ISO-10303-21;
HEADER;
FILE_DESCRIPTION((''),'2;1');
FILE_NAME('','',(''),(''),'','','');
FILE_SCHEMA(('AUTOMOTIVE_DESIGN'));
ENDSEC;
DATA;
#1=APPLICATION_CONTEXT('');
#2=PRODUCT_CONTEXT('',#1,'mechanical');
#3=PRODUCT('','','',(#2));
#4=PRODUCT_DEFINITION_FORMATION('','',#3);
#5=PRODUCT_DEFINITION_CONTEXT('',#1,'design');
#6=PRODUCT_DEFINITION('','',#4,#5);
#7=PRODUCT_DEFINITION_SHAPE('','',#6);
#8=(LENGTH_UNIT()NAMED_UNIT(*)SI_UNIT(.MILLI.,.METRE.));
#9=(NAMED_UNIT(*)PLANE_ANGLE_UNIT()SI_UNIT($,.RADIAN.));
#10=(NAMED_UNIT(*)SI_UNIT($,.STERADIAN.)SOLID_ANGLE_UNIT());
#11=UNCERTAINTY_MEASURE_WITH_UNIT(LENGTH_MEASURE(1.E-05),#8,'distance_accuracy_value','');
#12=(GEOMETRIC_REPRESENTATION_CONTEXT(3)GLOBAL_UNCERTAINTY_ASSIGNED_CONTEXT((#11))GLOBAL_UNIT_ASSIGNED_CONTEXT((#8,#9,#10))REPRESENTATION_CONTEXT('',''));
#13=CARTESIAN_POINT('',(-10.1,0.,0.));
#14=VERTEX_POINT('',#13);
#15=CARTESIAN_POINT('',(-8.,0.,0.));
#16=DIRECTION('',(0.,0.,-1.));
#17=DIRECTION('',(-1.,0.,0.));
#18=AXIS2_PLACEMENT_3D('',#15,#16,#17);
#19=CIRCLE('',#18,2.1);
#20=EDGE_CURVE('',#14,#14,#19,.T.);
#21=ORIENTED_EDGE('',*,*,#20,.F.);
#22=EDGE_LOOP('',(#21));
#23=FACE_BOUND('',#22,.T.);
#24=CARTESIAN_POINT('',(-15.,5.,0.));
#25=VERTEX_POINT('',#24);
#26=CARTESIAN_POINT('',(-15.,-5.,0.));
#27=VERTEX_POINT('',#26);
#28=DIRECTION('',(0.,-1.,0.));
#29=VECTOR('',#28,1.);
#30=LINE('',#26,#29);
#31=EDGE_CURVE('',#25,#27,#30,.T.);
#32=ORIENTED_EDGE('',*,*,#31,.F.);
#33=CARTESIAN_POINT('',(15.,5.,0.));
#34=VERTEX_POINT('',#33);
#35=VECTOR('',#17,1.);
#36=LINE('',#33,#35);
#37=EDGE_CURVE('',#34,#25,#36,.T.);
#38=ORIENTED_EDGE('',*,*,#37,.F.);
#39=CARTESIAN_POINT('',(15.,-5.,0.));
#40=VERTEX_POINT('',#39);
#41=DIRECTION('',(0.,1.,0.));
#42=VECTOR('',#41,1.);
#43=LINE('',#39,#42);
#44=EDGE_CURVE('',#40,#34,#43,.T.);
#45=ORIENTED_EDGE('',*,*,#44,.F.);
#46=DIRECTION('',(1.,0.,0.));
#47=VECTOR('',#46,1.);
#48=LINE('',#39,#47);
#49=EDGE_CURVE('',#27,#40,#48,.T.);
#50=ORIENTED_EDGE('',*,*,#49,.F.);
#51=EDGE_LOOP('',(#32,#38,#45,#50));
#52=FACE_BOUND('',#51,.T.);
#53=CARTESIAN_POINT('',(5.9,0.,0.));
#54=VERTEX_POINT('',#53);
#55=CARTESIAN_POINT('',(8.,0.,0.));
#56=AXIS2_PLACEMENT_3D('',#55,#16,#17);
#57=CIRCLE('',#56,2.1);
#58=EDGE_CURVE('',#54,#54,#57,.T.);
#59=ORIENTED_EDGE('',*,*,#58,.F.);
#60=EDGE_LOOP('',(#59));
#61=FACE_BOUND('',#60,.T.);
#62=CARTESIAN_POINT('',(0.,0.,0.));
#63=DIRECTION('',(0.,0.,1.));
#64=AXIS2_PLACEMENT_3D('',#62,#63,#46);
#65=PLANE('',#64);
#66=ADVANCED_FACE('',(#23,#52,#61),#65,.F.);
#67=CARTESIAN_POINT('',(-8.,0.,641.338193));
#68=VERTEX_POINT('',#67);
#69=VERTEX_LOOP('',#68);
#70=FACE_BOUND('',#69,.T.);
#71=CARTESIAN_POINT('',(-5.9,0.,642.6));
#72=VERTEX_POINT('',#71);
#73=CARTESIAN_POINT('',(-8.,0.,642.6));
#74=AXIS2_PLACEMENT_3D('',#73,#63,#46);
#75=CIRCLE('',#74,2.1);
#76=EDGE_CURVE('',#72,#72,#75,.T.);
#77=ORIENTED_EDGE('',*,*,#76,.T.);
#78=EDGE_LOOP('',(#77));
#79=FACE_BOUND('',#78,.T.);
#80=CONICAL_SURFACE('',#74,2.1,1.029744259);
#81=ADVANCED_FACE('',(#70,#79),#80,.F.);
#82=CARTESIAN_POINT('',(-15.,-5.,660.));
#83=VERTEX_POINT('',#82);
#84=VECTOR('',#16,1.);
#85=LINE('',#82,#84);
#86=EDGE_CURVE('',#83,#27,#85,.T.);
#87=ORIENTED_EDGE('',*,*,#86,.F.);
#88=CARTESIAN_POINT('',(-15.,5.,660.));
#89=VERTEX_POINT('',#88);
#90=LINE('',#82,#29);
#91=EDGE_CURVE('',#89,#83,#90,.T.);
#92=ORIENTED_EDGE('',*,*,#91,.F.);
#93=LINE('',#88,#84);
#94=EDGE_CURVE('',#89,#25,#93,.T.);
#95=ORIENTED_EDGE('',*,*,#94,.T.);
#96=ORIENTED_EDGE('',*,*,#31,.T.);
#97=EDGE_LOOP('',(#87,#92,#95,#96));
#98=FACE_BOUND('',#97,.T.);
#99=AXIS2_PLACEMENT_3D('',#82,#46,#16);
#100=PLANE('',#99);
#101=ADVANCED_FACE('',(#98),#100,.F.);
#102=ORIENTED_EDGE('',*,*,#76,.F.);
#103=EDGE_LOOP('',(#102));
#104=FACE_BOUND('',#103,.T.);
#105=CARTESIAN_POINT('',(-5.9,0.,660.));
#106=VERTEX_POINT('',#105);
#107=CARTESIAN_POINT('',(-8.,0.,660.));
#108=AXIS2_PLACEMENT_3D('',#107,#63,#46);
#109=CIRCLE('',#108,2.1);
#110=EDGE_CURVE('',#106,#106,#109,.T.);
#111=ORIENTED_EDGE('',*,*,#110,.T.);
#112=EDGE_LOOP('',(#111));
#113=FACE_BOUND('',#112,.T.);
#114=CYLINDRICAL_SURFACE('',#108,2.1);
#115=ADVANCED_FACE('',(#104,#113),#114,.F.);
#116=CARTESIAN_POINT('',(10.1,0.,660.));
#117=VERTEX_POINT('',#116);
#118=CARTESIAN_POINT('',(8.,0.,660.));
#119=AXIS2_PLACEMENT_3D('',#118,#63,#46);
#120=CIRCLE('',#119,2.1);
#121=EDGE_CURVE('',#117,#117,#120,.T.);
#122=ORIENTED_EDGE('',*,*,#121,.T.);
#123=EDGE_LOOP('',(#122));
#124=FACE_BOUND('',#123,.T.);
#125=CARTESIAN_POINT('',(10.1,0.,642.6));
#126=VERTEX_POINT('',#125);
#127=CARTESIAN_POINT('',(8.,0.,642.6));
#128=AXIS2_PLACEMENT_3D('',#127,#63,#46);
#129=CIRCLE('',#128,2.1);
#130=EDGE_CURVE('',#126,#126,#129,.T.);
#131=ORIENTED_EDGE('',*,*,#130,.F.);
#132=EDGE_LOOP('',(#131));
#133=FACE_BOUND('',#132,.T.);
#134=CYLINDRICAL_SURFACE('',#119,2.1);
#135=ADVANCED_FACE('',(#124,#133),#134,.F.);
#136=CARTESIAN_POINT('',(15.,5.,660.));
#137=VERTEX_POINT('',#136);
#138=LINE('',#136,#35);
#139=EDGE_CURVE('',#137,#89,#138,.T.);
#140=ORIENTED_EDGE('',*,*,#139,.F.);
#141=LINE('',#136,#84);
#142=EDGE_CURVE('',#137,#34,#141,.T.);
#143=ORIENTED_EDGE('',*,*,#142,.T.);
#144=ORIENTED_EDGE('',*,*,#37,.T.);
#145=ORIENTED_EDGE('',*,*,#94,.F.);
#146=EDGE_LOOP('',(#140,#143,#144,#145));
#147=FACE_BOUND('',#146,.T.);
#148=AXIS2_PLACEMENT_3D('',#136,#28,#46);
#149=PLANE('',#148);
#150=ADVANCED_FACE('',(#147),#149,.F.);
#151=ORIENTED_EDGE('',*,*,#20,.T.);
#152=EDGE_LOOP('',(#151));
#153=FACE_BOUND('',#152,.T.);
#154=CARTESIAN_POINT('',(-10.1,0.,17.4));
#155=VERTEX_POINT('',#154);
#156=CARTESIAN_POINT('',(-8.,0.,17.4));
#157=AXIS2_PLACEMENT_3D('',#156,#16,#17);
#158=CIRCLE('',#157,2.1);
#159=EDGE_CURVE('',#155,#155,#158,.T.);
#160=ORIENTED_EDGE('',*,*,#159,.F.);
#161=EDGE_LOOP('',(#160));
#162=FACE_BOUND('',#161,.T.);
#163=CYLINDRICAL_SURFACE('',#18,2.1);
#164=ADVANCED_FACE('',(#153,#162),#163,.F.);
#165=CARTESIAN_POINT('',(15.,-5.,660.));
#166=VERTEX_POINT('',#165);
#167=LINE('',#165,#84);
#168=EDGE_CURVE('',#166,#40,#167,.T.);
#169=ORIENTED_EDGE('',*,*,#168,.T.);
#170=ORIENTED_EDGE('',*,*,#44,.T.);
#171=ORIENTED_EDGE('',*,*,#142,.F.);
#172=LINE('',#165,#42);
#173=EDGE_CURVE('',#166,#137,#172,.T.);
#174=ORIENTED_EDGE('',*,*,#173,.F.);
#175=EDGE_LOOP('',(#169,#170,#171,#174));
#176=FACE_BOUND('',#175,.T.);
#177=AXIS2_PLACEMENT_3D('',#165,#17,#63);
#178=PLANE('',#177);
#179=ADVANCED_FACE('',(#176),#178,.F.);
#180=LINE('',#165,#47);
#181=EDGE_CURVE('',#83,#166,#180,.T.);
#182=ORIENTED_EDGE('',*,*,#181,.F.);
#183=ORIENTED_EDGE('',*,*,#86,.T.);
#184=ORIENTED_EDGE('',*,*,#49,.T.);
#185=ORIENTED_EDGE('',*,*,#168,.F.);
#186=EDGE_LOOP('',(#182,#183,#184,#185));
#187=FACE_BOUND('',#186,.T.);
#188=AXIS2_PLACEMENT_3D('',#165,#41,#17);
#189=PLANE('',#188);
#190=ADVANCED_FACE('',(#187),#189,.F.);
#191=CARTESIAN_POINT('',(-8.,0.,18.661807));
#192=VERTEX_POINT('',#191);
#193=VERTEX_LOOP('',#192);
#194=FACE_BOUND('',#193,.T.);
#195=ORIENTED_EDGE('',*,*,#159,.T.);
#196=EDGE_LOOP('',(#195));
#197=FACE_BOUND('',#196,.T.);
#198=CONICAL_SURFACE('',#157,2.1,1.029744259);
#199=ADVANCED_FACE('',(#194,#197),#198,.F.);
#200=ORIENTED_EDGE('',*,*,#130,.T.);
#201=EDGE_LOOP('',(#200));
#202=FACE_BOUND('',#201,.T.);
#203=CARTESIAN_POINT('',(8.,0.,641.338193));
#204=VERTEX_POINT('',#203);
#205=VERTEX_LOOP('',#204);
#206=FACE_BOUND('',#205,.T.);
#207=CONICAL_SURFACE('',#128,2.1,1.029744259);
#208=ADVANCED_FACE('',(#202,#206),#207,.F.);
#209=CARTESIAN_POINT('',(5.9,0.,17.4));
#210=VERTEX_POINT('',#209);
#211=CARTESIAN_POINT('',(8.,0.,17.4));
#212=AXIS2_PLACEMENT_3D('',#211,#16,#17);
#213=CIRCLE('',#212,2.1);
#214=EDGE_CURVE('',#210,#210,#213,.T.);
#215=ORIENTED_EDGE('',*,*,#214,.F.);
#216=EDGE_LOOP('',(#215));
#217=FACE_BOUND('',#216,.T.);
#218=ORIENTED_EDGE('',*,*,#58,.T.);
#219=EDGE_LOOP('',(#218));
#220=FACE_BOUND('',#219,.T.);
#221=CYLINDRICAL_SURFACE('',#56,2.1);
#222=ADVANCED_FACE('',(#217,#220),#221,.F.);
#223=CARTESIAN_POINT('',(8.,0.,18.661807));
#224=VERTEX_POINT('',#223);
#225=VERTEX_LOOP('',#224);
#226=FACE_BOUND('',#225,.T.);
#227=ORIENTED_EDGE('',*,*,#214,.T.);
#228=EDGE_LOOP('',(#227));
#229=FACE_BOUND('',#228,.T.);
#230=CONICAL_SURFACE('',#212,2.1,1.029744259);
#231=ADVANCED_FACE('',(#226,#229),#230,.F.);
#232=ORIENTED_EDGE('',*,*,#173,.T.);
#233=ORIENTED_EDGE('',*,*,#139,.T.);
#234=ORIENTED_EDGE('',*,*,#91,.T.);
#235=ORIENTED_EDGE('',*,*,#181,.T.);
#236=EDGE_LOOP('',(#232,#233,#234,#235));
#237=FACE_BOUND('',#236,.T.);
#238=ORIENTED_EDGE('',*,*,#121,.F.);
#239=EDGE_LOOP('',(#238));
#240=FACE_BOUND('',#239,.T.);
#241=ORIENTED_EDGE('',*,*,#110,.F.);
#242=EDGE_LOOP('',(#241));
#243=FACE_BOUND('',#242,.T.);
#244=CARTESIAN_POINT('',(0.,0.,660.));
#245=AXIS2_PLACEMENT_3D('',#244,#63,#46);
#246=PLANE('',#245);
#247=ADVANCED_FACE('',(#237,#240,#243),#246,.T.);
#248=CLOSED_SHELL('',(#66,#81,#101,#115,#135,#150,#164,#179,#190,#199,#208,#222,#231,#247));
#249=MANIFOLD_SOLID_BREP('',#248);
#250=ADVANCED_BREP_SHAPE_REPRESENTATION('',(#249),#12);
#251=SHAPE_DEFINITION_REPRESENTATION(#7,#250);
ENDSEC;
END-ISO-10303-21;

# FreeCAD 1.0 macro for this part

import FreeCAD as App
import Part
import Sketcher

V = App.Vector
Q = App.Units.Quantity

doc = App.newDocument("Part")
body = doc.addObject("PartDesign::Body", "Body")

# Sketch on XY plane
sketch1 = body.newObject("Sketcher::SketchObject", "Sketch")
sketch1.AttachmentSupport = (doc.getObject("XY_Plane"), [""])
sketch1.MapMode = "FlatFace"
sketch1.addGeometry(Part.LineSegment(V(-15, 5, 0), V(-15, -5, 0)), False)
sketch1.addGeometry(Part.LineSegment(V(-15, -5, 0), V(15, -5, 0)), False)
sketch1.addGeometry(Part.LineSegment(V(15, -5, 0), V(15, 5, 0)), False)
sketch1.addGeometry(Part.LineSegment(V(15, 5, 0), V(-15, 5, 0)), False)
sketch1.addConstraint(Sketcher.Constraint("Coincident", 0, 2, 1, 1))
sketch1.addConstraint(Sketcher.Constraint("Coincident", 1, 2, 2, 1))
sketch1.addConstraint(Sketcher.Constraint("Coincident", 2, 2, 3, 1))
sketch1.addConstraint(Sketcher.Constraint("Coincident", 3, 2, 0, 1))
sketch1.addConstraint(Sketcher.Constraint("Vertical", 0))
sketch1.addConstraint(Sketcher.Constraint("Horizontal", 1))
sketch1.addConstraint(Sketcher.Constraint("Vertical", 2))
sketch1.addConstraint(Sketcher.Constraint("Horizontal", 3))
sketch1.addConstraint(Sketcher.Constraint("Symmetric", 0, 2, 2, 2, -1, 1))
sketch1.addConstraint(Sketcher.Constraint("DistanceX", 1, 1, 1, 2, Q("30 mm")))
sketch1.addConstraint(Sketcher.Constraint("DistanceY", 0, 2, 0, 1, Q("10 mm")))
pad1 = body.newObject("PartDesign::Pad", "Pad")
pad1.Profile = sketch1
pad1.Length = 660

# Sketch on XY plane
sketch2 = body.newObject("Sketcher::SketchObject", "Sketch001")
sketch2.AttachmentSupport = (doc.getObject("XY_Plane"), [""])
sketch2.MapMode = "FlatFace"
sketch2.addGeometry(Part.Circle(V(-8, 0, 0), V(0, 0, 1), 2.1), False)
sketch2.addGeometry(Part.Circle(V(8, 0, 0), V(0, 0, 1), 2.1), False)
sketch2.addConstraint(Sketcher.Constraint("Equal", 0, 1))
sketch2.addConstraint(Sketcher.Constraint("Symmetric", 0, 3, 1, 3, -1, 1))
sketch2.addConstraint(Sketcher.Constraint("PointOnObject", 0, 3, -1))
sketch2.addConstraint(Sketcher.Constraint("Diameter", 0, Q("4.2 mm")))
sketch2.addConstraint(Sketcher.Constraint("DistanceX", 0, 3, -1, 1, Q("8 mm")))
doc.recompute()
hole = body.newObject("PartDesign::Hole", "Hole")
hole.Profile = sketch2
hole.ThreadType = "None"
hole.Diameter = 4.2
hole.DepthType = "Dimension"
hole.Depth = 17.4
hole.DrillPoint = "Angled"
hole.DrillPointAngle = 118
hole.Reversed = True

# Sketch on XY plane
sketch3 = body.newObject("Sketcher::SketchObject", "Sketch002")
sketch3.AttachmentSupport = (doc.getObject("XY_Plane"), [""])
sketch3.MapMode = "FlatFace"
sketch3.addGeometry(Part.Circle(V(-8, 0, 0), V(0, 0, 1), 2.1), False)
sketch3.addGeometry(Part.Circle(V(8, 0, 0), V(0, 0, 1), 2.1), False)
sketch3.addConstraint(Sketcher.Constraint("Equal", 0, 1))
sketch3.addConstraint(Sketcher.Constraint("Symmetric", 0, 3, 1, 3, -1, 1))
sketch3.addConstraint(Sketcher.Constraint("PointOnObject", 0, 3, -1))
sketch3.addConstraint(Sketcher.Constraint("Diameter", 0, Q("4.2 mm")))
sketch3.addConstraint(Sketcher.Constraint("DistanceX", 0, 3, -1, 1, Q("8 mm")))
doc.recompute()
hole2 = body.newObject("PartDesign::Hole", "Hole001")
hole2.Profile = sketch3
hole2.ThreadType = "None"
hole2.Diameter = 4.2
hole2.DepthType = "Dimension"
hole2.Depth = 17.4
hole2.DrillPoint = "Angled"
hole2.DrillPointAngle = 118
hole2.Reversed = True

# Sketch on XY plane
sketch4 = body.newObject("Sketcher::SketchObject", "Sketch003")
sketch4.AttachmentSupport = (doc.getObject("XY_Plane"), [""])
sketch4.MapMode = "FlatFace"
sketch4.AttachmentOffset = App.Placement(V(0, 0, 660), App.Rotation())
sketch4.addGeometry(Part.Circle(V(-8, 0, 0), V(0, 0, 1), 2.1), False)
sketch4.addGeometry(Part.Circle(V(8, 0, 0), V(0, 0, 1), 2.1), False)
sketch4.addConstraint(Sketcher.Constraint("Equal", 0, 1))
sketch4.addConstraint(Sketcher.Constraint("Symmetric", 0, 3, 1, 3, -1, 1))
sketch4.addConstraint(Sketcher.Constraint("PointOnObject", 0, 3, -1))
sketch4.addConstraint(Sketcher.Constraint("Diameter", 0, Q("4.2 mm")))
sketch4.addConstraint(Sketcher.Constraint("DistanceX", 0, 3, -1, 1, Q("8 mm")))
doc.recompute()
hole3 = body.newObject("PartDesign::Hole", "Hole002")
hole3.Profile = sketch4
hole3.ThreadType = "None"
hole3.Diameter = 4.2
hole3.DepthType = "Dimension"
hole3.Depth = 17.4
hole3.DrillPoint = "Angled"
hole3.DrillPointAngle = 118

doc.recompute()
